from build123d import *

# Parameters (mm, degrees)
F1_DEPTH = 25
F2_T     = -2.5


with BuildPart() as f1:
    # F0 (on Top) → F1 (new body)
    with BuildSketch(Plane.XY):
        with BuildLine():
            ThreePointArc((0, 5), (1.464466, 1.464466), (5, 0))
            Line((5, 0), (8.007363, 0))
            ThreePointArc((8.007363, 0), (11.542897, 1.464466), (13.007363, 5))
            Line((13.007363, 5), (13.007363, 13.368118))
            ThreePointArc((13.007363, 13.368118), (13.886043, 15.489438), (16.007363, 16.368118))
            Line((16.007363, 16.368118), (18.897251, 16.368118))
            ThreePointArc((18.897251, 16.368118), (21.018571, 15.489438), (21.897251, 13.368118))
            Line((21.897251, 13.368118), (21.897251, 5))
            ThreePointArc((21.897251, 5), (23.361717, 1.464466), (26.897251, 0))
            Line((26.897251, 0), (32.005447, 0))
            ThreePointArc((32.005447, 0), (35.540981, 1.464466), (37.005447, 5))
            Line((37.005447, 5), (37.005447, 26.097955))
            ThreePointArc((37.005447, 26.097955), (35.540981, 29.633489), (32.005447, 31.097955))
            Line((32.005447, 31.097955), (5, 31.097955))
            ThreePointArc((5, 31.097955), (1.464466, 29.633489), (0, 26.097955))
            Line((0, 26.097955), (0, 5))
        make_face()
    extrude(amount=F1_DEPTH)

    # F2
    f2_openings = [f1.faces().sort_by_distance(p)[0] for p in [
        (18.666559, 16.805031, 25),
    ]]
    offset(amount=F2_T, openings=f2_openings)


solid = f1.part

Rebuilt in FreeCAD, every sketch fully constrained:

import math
import FreeCAD as App
import Part
import Sketcher


def faces_at(feature, points):
    """Names of the faces that lie closest to the given points."""
    faces = feature.Shape.Faces
    near = lambda p: min(range(len(faces)), key=lambda i: faces[i].distToShape(Part.Vertex(*p))[0])
    return sorted({f"Face{near(p) + 1}" for p in points})

doc = App.newDocument("Part")
body = doc.addObject("PartDesign::Body", "Body")

sketch1 = body.newObject("Sketcher::SketchObject", "Sketch")
sketch1.AttachmentSupport = (doc.getObject("XY_Plane"), [""])
sketch1.MapMode = "FlatFace"
sketch1.addGeometry([
    Part.ArcOfCircle(Part.Circle(App.Vector(5, 5, 0), App.Vector(0, 0, 1), 5), math.radians(180), math.radians(270)),
    Part.LineSegment(App.Vector(5, 0, 0), App.Vector(8, 0, 0)),
    Part.ArcOfCircle(Part.Circle(App.Vector(8, 5, 0), App.Vector(0, 0, 1), 5), math.radians(-90), math.radians(0)),
    Part.LineSegment(App.Vector(13, 5, 0), App.Vector(13, 13.4, 0)),
    Part.ArcOfCircle(Part.Circle(App.Vector(16, 13.4, 0), App.Vector(0, 0, 1), 3), math.radians(90), math.radians(180)),
    Part.LineSegment(App.Vector(16, 16.4, 0), App.Vector(18.9, 16.4, 0)),
    Part.ArcOfCircle(Part.Circle(App.Vector(18.9, 13.4, 0), App.Vector(0, 0, 1), 3), math.radians(0), math.radians(90)),
    Part.LineSegment(App.Vector(21.9, 13.4, 0), App.Vector(21.9, 5, 0)),
    Part.ArcOfCircle(Part.Circle(App.Vector(26.9, 5, 0), App.Vector(0, 0, 1), 5), math.radians(180), math.radians(270)),
    Part.LineSegment(App.Vector(26.9, 0, 0), App.Vector(32, 0, 0)),
    Part.ArcOfCircle(Part.Circle(App.Vector(32, 5, 0), App.Vector(0, 0, 1), 5), math.radians(-90), math.radians(0)),
    Part.LineSegment(App.Vector(37, 5, 0), App.Vector(37, 26.1, 0)),
    Part.ArcOfCircle(Part.Circle(App.Vector(32, 26.1, 0), App.Vector(0, 0, 1), 5), math.radians(0), math.radians(90)),
    Part.LineSegment(App.Vector(32, 31.1, 0), App.Vector(5, 31.1, 0)),
    Part.ArcOfCircle(Part.Circle(App.Vector(5, 26.1, 0), App.Vector(0, 0, 1), 5), math.radians(90), math.radians(180)),
    Part.LineSegment(App.Vector(0, 26.1, 0), App.Vector(0, 5, 0)),
], False)
sketch1.addConstraint([
    Sketcher.Constraint("Tangent", 0, 2, 1, 1),
    Sketcher.Constraint("Tangent", 1, 2, 2, 1),
    Sketcher.Constraint("Tangent", 2, 2, 3, 1),
    Sketcher.Constraint("Tangent", 3, 2, 4, 2),
    Sketcher.Constraint("Tangent", 4, 1, 5, 1),
    Sketcher.Constraint("Tangent", 5, 2, 6, 2),
    Sketcher.Constraint("Tangent", 6, 1, 7, 1),
    Sketcher.Constraint("Tangent", 7, 2, 8, 1),
    Sketcher.Constraint("Tangent", 8, 2, 9, 1),
    Sketcher.Constraint("Tangent", 9, 2, 10, 1),
    Sketcher.Constraint("Tangent", 10, 2, 11, 1),
    Sketcher.Constraint("Tangent", 11, 2, 12, 1),
    Sketcher.Constraint("Tangent", 12, 2, 13, 1),
    Sketcher.Constraint("Tangent", 13, 2, 14, 1),
    Sketcher.Constraint("Tangent", 14, 2, 15, 1),
    Sketcher.Constraint("Tangent", 15, 2, 0, 1),
    Sketcher.Constraint("Horizontal", 1),
    Sketcher.Constraint("Vertical", 3),
    Sketcher.Constraint("Horizontal", 5),
    Sketcher.Constraint("Vertical", 7),
    Sketcher.Constraint("Horizontal", 9),
    Sketcher.Constraint("Vertical", 11),
    Sketcher.Constraint("Horizontal", 13),
    Sketcher.Constraint("Vertical", 15),
    Sketcher.Constraint("Equal", 0, 2),
    Sketcher.Constraint("Equal", 4, 6),
    Sketcher.Constraint("Equal", 2, 8),
    Sketcher.Constraint("Equal", 8, 10),
    Sketcher.Constraint("Equal", 10, 12),
    Sketcher.Constraint("Equal", 12, 14),
    Sketcher.Constraint("PointOnObject", 0, 2, -1),
    Sketcher.Constraint("PointOnObject", 8, 2, -1),
    Sketcher.Constraint("PointOnObject", 14, 2, -2),
    Sketcher.Constraint("Radius", 0, 5.0),
    Sketcher.Constraint("Radius", 4, 3.000001),
    Sketcher.Constraint("DistanceY", 3, 1, 3, 2, 8.368118),
    Sketcher.Constraint("DistanceX", 1, 1, 1, 2, 3.007363),
    Sketcher.Constraint("DistanceX", 5, 1, 5, 2, 2.889888),
    Sketcher.Constraint("DistanceX", 9, 1, 9, 2, 5.108196),
    Sketcher.Constraint("DistanceY", 11, 1, 11, 2, 21.097955),
])
pad1 = body.newObject("PartDesign::Pad", "Pad")
pad1.Profile = sketch1
pad1.Length = 25
doc.recompute()

thickness = body.newObject("PartDesign::Thickness", "Thickness")
thickness.Base = (pad1, faces_at(pad1, [(11.102, 9.329, 25)]))
thickness.Value = 2.5
thickness.Reversed = True
thickness.Join = "Arc"

doc.recompute()
